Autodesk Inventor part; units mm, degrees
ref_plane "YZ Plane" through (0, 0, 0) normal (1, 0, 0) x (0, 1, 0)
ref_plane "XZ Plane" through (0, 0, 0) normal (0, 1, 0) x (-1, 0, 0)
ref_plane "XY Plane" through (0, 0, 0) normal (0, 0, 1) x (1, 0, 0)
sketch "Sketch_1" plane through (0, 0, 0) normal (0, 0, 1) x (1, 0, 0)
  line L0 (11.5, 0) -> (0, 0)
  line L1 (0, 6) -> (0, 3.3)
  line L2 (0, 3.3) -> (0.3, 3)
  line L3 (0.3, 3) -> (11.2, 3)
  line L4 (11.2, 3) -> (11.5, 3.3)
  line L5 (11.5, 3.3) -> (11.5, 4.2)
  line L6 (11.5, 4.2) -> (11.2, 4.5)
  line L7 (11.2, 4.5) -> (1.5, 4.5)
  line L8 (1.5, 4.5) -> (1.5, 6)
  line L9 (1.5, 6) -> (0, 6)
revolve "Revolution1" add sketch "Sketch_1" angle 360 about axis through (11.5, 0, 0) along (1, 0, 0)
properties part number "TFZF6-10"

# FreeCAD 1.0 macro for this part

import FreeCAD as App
import Part
import Sketcher
Q = App.Units.Quantity

doc = App.newDocument("Part")
params = doc.addObject("Spreadsheet::Sheet", "Params")
for row, (alias, value) in enumerate([
    ("sketch1_width", "1.5 mm"),
    ("sketch1_width2", "10.9 mm"),
    ("sketch1_width3", "9.7 mm"),
    ("sketch1_height", "2.7 mm"),
    ("revolution_angle", "360 deg"),
], start=1):
    params.set(f"A{row}", alias)
    params.set(f"B{row}", "=" + value)
    params.setAlias(f"B{row}", alias)

body = doc.addObject("PartDesign::Body", "Body")

# Sketch on XY plane
sketch1 = doc.addObject("Sketcher::SketchObject", "Sketch")
body.addObject(sketch1)
sketch1.AttachmentSupport = (doc.XY_Plane, [""])
sketch1.MapMode = "FlatFace"
sketch1.addGeometry([
    Part.LineSegment(App.Vector(1.5, 6, 0), App.Vector(0, 6, 0)),  # 0
    Part.LineSegment(App.Vector(0, 6, 0), App.Vector(0, 3.3, 0)),  # 1
    Part.LineSegment(App.Vector(0, 3.3, 0), App.Vector(0.3, 3, 0)),  # 2
    Part.LineSegment(App.Vector(0.3, 3, 0), App.Vector(11.2, 3, 0)),  # 3
    Part.LineSegment(App.Vector(11.2, 3, 0), App.Vector(11.5, 3.3, 0)),  # 4
    Part.LineSegment(App.Vector(11.5, 3.3, 0), App.Vector(11.5, 4.2, 0)),  # 5
    Part.LineSegment(App.Vector(11.5, 4.2, 0), App.Vector(11.2, 4.5, 0)),  # 6
    Part.LineSegment(App.Vector(11.2, 4.5, 0), App.Vector(1.5, 4.5, 0)),  # 7
    Part.LineSegment(App.Vector(1.5, 4.5, 0), App.Vector(1.5, 6, 0)),  # 8
], False)
sketch1.addConstraint([
    Sketcher.Constraint("Coincident", 0, 2, 1, 1),
    Sketcher.Constraint("Coincident", 1, 2, 2, 1),
    Sketcher.Constraint("Coincident", 2, 2, 3, 1),
    Sketcher.Constraint("Coincident", 3, 2, 4, 1),
    Sketcher.Constraint("Coincident", 4, 2, 5, 1),
    Sketcher.Constraint("Coincident", 5, 2, 6, 1),
    Sketcher.Constraint("Coincident", 6, 2, 7, 1),
    Sketcher.Constraint("Coincident", 7, 2, 8, 1),
    Sketcher.Constraint("Coincident", 8, 2, 0, 1),
    Sketcher.Constraint("Horizontal", 0),
    Sketcher.Constraint("Vertical", 1),
    Sketcher.Constraint("Horizontal", 3),
    Sketcher.Constraint("Vertical", 5),
    Sketcher.Constraint("Horizontal", 7),
    Sketcher.Constraint("Vertical", 8),
    Sketcher.Constraint("PointOnObject", 0, 2, -2),
    Sketcher.Constraint("Perpendicular", 2, 4),
    Sketcher.Constraint("Perpendicular", 4, 6),
    Sketcher.Constraint("Horizontal", 1, 2, 4, 2),
    Sketcher.Constraint("Vertical", 3, 2, 6, 2),
    Sketcher.Constraint("Equal", 0, 8),
    Sketcher.Constraint("Equal", 2, 4),
    Sketcher.Constraint("DistanceX", 0, 2, 0, 1, Q("1.5 mm")),
    Sketcher.Constraint("DistanceX", 3, 1, 3, 2, Q("10.9 mm")),
    Sketcher.Constraint("DistanceX", 7, 2, 7, 1, Q("9.7 mm")),
    Sketcher.Constraint("DistanceY", 1, 2, 1, 1, Q("2.7 mm")),
    Sketcher.Constraint("DistanceY", -1, 1, 0, 2, Q("6 mm")),
])
sketch1.setExpression("Constraints[22]", "Params.sketch1_width")
sketch1.setExpression("Constraints[23]", "Params.sketch1_width2")
sketch1.setExpression("Constraints[24]", "Params.sketch1_width3")
sketch1.setExpression("Constraints[25]", "Params.sketch1_height")
revolution = doc.addObject("PartDesign::Revolution", "Revolution")
body.addObject(revolution)
revolution.Profile = sketch1
revolution.ReferenceAxis = (sketch1, ["H_Axis"])
revolution.setExpression("Angle", "Params.revolution_angle")

doc.recompute()
